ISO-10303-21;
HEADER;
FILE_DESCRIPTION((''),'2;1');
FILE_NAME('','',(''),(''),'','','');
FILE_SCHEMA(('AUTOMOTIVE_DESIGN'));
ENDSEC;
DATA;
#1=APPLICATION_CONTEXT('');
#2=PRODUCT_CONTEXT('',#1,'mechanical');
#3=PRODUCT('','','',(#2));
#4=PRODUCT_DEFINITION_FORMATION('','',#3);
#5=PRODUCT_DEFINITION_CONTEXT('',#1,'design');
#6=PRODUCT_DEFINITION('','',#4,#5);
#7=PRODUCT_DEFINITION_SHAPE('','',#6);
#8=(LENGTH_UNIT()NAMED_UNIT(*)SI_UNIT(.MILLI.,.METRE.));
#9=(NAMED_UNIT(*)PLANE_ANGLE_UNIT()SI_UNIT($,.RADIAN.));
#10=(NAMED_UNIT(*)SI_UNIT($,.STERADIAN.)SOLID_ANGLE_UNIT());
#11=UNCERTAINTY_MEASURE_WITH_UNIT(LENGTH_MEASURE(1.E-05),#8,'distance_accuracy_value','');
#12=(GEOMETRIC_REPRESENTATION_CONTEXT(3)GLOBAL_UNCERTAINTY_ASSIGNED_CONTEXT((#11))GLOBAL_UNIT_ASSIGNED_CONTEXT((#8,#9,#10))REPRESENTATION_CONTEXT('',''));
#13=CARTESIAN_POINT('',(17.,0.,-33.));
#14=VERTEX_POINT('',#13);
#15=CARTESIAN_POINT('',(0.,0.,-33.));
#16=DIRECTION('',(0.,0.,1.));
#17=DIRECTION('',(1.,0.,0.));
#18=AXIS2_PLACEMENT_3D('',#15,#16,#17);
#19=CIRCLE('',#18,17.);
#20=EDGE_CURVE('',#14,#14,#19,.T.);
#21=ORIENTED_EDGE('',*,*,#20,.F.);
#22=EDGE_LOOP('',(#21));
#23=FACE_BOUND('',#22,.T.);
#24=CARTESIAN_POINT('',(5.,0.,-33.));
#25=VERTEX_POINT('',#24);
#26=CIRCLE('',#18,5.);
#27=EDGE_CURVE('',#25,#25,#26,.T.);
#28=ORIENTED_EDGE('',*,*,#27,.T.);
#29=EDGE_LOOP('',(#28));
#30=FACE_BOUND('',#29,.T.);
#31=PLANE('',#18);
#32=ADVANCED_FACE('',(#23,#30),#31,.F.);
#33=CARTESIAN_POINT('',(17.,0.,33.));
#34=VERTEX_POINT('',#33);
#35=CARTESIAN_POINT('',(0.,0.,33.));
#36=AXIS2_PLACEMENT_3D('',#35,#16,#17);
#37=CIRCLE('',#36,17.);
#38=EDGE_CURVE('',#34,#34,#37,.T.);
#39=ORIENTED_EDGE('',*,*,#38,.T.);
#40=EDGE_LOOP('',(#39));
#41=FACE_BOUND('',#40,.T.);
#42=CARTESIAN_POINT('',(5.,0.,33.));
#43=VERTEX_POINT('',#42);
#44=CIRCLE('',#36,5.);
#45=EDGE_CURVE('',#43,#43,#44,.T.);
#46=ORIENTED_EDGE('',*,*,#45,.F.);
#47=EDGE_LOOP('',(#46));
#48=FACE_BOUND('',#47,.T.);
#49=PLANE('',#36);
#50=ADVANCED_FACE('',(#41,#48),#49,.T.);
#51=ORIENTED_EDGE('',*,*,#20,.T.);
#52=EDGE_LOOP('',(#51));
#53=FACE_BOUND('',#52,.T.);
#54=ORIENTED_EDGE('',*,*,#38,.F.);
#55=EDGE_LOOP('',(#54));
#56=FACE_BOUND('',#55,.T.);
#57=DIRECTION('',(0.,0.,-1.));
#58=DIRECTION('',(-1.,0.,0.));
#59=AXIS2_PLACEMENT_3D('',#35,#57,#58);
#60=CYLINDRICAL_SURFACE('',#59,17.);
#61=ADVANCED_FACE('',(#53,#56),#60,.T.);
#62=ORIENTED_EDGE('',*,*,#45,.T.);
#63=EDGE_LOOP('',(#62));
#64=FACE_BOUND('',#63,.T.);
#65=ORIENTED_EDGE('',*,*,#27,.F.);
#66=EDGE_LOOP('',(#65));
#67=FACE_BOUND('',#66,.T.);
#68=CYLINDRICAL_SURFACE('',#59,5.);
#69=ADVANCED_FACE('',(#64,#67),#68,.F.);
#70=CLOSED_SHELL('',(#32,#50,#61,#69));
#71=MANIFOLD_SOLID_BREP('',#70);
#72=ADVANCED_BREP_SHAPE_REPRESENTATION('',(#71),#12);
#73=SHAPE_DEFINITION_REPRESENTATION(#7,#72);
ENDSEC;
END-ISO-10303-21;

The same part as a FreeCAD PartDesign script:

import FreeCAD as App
import Part
import Sketcher

V = App.Vector
Q = App.Units.Quantity

doc = App.newDocument("Part")
params = doc.addObject("Spreadsheet::Sheet", "Params")
for row, (alias, value) in enumerate([
    ("sketch1_diameter", "34 mm"),
    ("sketch1_diameter2", "10 mm"),
    ("pad1_length", "66 mm"),
], start=1):
    params.set(f"A{row}", alias)
    params.set(f"B{row}", "=" + value)
    params.setAlias(f"B{row}", alias)

body = doc.addObject("PartDesign::Body", "Body")

# Sketch on XY plane
sketch1 = body.newObject("Sketcher::SketchObject", "Sketch")
sketch1.AttachmentSupport = (doc.getObject("XY_Plane"), [""])
sketch1.MapMode = "FlatFace"
sketch1.addGeometry([
    Part.Circle(V(0, 0, 0), V(0, 0, 1), 17),
    Part.Circle(V(0, 0, 0), V(0, 0, 1), 5),
], False)
sketch1.addConstraint([
    Sketcher.Constraint("Coincident", 0, 3, -1, 1),
    Sketcher.Constraint("Coincident", 1, 3, -1, 1),
    Sketcher.Constraint("Diameter", 0, Q("34 mm")),
    Sketcher.Constraint("Diameter", 1, Q("10 mm")),
])
sketch1.setExpression("Constraints[2]", "Params.sketch1_diameter")
sketch1.setExpression("Constraints[3]", "Params.sketch1_diameter2")
pad1 = body.newObject("PartDesign::Pad", "Pad")
pad1.Profile = sketch1
pad1.setExpression("Length", "Params.pad1_length")
pad1.Midplane = True

doc.recompute()
